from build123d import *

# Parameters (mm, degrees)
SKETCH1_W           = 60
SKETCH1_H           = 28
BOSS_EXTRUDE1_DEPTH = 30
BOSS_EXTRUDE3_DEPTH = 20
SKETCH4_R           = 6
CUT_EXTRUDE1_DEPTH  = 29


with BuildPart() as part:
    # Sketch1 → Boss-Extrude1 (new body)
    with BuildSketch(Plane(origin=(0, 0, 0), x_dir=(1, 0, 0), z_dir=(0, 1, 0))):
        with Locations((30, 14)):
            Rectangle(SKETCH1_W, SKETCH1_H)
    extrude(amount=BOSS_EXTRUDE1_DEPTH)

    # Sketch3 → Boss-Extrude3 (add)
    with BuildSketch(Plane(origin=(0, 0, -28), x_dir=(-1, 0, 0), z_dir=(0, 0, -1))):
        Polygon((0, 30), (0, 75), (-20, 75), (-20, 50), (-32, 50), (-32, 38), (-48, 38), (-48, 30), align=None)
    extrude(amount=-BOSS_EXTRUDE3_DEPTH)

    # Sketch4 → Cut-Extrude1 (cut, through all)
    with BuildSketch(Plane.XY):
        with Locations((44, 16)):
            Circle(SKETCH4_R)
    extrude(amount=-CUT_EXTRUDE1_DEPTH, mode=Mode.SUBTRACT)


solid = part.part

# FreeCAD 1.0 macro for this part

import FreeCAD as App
import Part
import Sketcher

V = App.Vector
Q = App.Units.Quantity


def add_polygon(sketch, points):
    """Adds a closed chain of lines whose ends are joined by coincident constraints."""
    first, n = sketch.GeometryCount, len(points)
    for a, b in zip(points, points[1:] + points[:1]):
        sketch.addGeometry(Part.LineSegment(App.Vector(*a, 0), App.Vector(*b, 0)), False)
    for i in range(n):
        sketch.addConstraint(Sketcher.Constraint("Coincident", first + i, 2, first + (i + 1) % n, 1))

doc = App.newDocument("Part")
body = doc.addObject("PartDesign::Body", "Body")

# Sketch on XZ plane
sketch1 = doc.addObject("Sketcher::SketchObject", "Sketch")
body.addObject(sketch1)
sketch1.AttachmentSupport = (doc.XZ_Plane, [""])
sketch1.MapMode = "FlatFace"
add_polygon(sketch1, [(0, -28), (0, 0), (60, 0), (60, -28)])  # lines 0-3
sketch1.addConstraint([
    Sketcher.Constraint("Vertical", 0),
    Sketcher.Constraint("Horizontal", 1),
    Sketcher.Constraint("Vertical", 2),
    Sketcher.Constraint("Horizontal", 3),
    Sketcher.Constraint("Coincident", 0, 2, -1, 1),
    Sketcher.Constraint("DistanceX", 1, 1, 1, 2, Q("60 mm")),
    Sketcher.Constraint("DistanceY", 0, 1, 0, 2, Q("28 mm")),
])
pad1 = doc.addObject("PartDesign::Pad", "Pad")
body.addObject(pad1)
pad1.Profile = sketch1
pad1.Length = 30
pad1.Reversed = True

# Sketch on XY plane
sketch2 = doc.addObject("Sketcher::SketchObject", "Sketch001")
body.addObject(sketch2)
sketch2.AttachmentSupport = (doc.XY_Plane, [""])
sketch2.MapMode = "FlatFace"
sketch2.AttachmentOffset = App.Placement(V(0, 0, -28), App.Rotation())
add_polygon(sketch2, [(0, 30), (0, 75), (20, 75), (20, 50), (32, 50), (32, 38), (48, 38), (48, 30)])  # lines 0-7
sketch2.addConstraint([
    Sketcher.Constraint("Vertical", 0),
    Sketcher.Constraint("Horizontal", 1),
    Sketcher.Constraint("Vertical", 2),
    Sketcher.Constraint("Horizontal", 3),
    Sketcher.Constraint("Vertical", 4),
    Sketcher.Constraint("Horizontal", 5),
    Sketcher.Constraint("Vertical", 6),
    Sketcher.Constraint("Horizontal", 7),
    Sketcher.Constraint("PointOnObject", 0, 2, -2),
    Sketcher.Constraint("Equal", 3, 4),
    Sketcher.Constraint("DistanceX", 1, 1, 1, 2, Q("20 mm")),
    Sketcher.Constraint("DistanceX", 3, 1, 3, 2, Q("12 mm")),
    Sketcher.Constraint("DistanceX", 5, 1, 5, 2, Q("16 mm")),
    Sketcher.Constraint("DistanceY", 0, 1, 0, 2, Q("45 mm")),
    Sketcher.Constraint("DistanceY", 2, 2, 2, 1, Q("25 mm")),
    Sketcher.Constraint("DistanceY", -1, 1, 0, 2, Q("75 mm")),
])
pad2 = doc.addObject("PartDesign::Pad", "Pad001")
body.addObject(pad2)
pad2.Profile = sketch2
pad2.Length = 20

# Sketch on XY plane
sketch3 = doc.addObject("Sketcher::SketchObject", "Sketch002")
body.addObject(sketch3)
sketch3.AttachmentSupport = (doc.XY_Plane, [""])
sketch3.MapMode = "FlatFace"
sketch3.addGeometry(Part.Circle(V(44, 16, 0), V(0, 0, 1), 6), False)
sketch3.addConstraint([
    Sketcher.Constraint("Diameter", 0, Q("12 mm")),
    Sketcher.Constraint("DistanceX", -1, 1, 0, 3, Q("44 mm")),
    Sketcher.Constraint("DistanceY", -1, 1, 0, 3, Q("16 mm")),
])
pocket1 = doc.addObject("PartDesign::Pocket", "Pocket")
body.addObject(pocket1)
pocket1.Profile = sketch3
pocket1.Type = "ThroughAll"

doc.recompute()
